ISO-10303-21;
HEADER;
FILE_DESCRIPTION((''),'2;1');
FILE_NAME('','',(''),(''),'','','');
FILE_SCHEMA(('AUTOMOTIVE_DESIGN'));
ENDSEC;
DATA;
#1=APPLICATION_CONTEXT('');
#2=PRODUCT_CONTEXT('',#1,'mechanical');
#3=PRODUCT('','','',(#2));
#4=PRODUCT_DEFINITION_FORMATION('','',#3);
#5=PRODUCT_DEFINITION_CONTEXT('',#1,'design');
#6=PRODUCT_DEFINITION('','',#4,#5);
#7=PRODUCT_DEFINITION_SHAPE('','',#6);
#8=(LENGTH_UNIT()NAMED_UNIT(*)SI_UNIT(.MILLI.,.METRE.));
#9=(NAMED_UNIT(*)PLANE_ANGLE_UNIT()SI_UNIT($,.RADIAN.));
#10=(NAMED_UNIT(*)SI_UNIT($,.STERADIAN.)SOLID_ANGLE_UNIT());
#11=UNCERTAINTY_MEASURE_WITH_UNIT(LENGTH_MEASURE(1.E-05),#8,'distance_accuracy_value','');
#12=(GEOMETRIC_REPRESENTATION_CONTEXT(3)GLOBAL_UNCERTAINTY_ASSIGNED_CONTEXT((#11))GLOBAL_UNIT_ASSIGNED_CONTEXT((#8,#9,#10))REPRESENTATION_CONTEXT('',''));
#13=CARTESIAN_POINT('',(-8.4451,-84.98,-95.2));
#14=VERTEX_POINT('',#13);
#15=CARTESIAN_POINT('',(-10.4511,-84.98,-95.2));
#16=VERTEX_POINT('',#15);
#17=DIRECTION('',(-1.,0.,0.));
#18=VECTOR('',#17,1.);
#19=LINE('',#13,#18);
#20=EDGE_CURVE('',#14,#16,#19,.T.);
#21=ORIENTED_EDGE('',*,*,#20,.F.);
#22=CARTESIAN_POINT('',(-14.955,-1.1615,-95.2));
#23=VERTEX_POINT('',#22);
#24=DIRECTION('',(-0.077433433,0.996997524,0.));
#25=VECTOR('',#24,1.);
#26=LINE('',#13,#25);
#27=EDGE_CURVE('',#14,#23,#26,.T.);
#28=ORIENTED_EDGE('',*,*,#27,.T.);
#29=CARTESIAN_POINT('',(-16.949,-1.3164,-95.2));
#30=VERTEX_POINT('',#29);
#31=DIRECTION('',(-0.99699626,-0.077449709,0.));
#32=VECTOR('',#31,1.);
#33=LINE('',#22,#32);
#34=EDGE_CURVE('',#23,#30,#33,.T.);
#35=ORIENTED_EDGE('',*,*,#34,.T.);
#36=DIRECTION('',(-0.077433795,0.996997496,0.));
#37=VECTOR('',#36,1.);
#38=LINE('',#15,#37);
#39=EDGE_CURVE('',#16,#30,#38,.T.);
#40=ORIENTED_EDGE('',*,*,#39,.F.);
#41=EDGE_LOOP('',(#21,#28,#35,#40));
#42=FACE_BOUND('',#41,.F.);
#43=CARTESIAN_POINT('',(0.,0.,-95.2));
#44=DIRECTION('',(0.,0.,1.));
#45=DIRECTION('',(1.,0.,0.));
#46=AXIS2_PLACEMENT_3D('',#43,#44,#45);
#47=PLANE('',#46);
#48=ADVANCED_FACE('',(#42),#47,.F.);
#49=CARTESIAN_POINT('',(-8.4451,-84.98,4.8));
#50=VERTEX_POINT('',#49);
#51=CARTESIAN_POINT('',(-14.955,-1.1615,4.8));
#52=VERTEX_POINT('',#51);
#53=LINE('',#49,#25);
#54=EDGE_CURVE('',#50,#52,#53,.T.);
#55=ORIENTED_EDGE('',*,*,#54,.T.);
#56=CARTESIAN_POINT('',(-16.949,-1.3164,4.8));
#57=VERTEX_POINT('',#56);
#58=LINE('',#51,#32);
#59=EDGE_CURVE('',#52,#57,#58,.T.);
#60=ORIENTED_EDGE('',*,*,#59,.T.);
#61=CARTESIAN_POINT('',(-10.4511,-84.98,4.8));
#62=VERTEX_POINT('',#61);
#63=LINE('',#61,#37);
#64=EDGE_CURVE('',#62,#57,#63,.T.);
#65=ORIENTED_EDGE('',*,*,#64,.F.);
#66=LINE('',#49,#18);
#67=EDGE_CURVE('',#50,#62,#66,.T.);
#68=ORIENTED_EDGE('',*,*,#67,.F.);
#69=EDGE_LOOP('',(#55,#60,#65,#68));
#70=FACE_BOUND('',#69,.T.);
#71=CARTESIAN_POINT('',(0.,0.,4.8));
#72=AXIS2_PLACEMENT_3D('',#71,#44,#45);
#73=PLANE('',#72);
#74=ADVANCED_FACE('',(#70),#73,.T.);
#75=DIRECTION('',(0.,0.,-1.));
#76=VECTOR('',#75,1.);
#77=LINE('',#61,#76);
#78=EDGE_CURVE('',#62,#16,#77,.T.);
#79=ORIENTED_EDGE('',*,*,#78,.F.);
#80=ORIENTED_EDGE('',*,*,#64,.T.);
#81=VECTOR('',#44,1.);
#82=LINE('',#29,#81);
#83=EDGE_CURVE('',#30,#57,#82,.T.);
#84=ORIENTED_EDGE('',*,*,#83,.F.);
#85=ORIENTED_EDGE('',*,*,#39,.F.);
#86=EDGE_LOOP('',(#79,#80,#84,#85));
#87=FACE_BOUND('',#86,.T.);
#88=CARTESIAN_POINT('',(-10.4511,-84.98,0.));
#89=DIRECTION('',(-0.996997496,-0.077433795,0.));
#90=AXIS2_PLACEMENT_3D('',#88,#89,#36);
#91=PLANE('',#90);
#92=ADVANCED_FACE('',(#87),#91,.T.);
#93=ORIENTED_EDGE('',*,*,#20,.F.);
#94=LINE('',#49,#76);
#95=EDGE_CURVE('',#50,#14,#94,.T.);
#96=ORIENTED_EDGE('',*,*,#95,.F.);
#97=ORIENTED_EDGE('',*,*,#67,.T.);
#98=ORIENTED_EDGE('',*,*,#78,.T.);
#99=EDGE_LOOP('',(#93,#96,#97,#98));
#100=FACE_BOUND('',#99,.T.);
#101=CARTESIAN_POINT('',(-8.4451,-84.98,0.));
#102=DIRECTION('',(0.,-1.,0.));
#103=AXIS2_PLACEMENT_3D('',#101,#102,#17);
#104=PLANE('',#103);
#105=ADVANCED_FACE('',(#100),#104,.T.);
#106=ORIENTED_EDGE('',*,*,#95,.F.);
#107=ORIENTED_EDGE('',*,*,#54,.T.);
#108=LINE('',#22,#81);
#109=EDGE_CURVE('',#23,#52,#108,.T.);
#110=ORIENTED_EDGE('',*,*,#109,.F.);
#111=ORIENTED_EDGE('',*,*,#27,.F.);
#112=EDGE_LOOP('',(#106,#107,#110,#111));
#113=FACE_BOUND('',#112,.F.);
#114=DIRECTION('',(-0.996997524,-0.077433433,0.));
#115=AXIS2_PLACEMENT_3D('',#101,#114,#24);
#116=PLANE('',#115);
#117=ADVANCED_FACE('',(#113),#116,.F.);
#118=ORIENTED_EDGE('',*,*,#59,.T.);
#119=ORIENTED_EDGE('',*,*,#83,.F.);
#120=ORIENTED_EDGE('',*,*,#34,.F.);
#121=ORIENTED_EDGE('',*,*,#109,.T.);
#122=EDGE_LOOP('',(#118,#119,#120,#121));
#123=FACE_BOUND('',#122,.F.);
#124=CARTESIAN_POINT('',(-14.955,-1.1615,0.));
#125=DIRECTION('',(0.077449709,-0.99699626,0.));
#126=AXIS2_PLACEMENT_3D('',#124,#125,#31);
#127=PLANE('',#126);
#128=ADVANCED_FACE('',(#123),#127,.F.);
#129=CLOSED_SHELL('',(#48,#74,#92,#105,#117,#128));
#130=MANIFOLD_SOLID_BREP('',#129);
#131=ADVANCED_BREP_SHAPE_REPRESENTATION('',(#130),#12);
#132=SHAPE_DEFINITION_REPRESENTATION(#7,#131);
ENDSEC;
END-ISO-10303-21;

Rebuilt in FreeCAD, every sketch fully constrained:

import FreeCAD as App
import Part
import Sketcher

V = App.Vector

doc = App.newDocument("Part")
body = doc.addObject("PartDesign::Body", "Body")

sketch1 = body.newObject("Sketcher::SketchObject", "Sketch")
sketch1.AttachmentSupport = (doc.getObject("XY_Plane"), [""])
sketch1.MapMode = "FlatFace"
sketch1.addGeometry([
    Part.LineSegment(V(-8.4451, -84.98, 0), V(-14.955, -1.1615, 0)),
    Part.LineSegment(V(-14.955, -1.1615, 0), V(-16.949, -1.3164, 0)),
    Part.LineSegment(V(-16.949, -1.3164, 0), V(-10.4511, -84.98, 0)),
    Part.LineSegment(V(-10.4511, -84.98, 0), V(-8.4451, -84.98, 0)),
], False)
sketch1.addConstraint([
    Sketcher.Constraint("Coincident", 0, 2, 1, 1),
    Sketcher.Constraint("Coincident", 1, 2, 2, 1),
    Sketcher.Constraint("Coincident", 2, 2, 3, 1),
    Sketcher.Constraint("Coincident", 3, 2, 0, 1),
    Sketcher.Constraint("Horizontal", 3),
    Sketcher.Constraint("Distance", 1, 2.0),
    Sketcher.Constraint("DistanceX", 3, 1, 3, 2, 2.006),
    Sketcher.Constraint("DistanceY", 2, 2, -1, 1, 84.98),
    Sketcher.Constraint("DistanceX", 0, 2, 3, 2, 6.51),
    Sketcher.Constraint("Distance", 0, 84.071),
    Sketcher.Constraint("DistanceX", 0, 2, -1, 1, 14.955),
    Sketcher.Constraint("DistanceX", 1, 2, -1, 1, 16.949),
])
pad1 = body.newObject("PartDesign::Pad", "Pad")
pad1.Profile = sketch1
pad1.Type = "TwoLengths"
pad1.Length = 4.8
pad1.Length2 = 95.2

doc.recompute()
